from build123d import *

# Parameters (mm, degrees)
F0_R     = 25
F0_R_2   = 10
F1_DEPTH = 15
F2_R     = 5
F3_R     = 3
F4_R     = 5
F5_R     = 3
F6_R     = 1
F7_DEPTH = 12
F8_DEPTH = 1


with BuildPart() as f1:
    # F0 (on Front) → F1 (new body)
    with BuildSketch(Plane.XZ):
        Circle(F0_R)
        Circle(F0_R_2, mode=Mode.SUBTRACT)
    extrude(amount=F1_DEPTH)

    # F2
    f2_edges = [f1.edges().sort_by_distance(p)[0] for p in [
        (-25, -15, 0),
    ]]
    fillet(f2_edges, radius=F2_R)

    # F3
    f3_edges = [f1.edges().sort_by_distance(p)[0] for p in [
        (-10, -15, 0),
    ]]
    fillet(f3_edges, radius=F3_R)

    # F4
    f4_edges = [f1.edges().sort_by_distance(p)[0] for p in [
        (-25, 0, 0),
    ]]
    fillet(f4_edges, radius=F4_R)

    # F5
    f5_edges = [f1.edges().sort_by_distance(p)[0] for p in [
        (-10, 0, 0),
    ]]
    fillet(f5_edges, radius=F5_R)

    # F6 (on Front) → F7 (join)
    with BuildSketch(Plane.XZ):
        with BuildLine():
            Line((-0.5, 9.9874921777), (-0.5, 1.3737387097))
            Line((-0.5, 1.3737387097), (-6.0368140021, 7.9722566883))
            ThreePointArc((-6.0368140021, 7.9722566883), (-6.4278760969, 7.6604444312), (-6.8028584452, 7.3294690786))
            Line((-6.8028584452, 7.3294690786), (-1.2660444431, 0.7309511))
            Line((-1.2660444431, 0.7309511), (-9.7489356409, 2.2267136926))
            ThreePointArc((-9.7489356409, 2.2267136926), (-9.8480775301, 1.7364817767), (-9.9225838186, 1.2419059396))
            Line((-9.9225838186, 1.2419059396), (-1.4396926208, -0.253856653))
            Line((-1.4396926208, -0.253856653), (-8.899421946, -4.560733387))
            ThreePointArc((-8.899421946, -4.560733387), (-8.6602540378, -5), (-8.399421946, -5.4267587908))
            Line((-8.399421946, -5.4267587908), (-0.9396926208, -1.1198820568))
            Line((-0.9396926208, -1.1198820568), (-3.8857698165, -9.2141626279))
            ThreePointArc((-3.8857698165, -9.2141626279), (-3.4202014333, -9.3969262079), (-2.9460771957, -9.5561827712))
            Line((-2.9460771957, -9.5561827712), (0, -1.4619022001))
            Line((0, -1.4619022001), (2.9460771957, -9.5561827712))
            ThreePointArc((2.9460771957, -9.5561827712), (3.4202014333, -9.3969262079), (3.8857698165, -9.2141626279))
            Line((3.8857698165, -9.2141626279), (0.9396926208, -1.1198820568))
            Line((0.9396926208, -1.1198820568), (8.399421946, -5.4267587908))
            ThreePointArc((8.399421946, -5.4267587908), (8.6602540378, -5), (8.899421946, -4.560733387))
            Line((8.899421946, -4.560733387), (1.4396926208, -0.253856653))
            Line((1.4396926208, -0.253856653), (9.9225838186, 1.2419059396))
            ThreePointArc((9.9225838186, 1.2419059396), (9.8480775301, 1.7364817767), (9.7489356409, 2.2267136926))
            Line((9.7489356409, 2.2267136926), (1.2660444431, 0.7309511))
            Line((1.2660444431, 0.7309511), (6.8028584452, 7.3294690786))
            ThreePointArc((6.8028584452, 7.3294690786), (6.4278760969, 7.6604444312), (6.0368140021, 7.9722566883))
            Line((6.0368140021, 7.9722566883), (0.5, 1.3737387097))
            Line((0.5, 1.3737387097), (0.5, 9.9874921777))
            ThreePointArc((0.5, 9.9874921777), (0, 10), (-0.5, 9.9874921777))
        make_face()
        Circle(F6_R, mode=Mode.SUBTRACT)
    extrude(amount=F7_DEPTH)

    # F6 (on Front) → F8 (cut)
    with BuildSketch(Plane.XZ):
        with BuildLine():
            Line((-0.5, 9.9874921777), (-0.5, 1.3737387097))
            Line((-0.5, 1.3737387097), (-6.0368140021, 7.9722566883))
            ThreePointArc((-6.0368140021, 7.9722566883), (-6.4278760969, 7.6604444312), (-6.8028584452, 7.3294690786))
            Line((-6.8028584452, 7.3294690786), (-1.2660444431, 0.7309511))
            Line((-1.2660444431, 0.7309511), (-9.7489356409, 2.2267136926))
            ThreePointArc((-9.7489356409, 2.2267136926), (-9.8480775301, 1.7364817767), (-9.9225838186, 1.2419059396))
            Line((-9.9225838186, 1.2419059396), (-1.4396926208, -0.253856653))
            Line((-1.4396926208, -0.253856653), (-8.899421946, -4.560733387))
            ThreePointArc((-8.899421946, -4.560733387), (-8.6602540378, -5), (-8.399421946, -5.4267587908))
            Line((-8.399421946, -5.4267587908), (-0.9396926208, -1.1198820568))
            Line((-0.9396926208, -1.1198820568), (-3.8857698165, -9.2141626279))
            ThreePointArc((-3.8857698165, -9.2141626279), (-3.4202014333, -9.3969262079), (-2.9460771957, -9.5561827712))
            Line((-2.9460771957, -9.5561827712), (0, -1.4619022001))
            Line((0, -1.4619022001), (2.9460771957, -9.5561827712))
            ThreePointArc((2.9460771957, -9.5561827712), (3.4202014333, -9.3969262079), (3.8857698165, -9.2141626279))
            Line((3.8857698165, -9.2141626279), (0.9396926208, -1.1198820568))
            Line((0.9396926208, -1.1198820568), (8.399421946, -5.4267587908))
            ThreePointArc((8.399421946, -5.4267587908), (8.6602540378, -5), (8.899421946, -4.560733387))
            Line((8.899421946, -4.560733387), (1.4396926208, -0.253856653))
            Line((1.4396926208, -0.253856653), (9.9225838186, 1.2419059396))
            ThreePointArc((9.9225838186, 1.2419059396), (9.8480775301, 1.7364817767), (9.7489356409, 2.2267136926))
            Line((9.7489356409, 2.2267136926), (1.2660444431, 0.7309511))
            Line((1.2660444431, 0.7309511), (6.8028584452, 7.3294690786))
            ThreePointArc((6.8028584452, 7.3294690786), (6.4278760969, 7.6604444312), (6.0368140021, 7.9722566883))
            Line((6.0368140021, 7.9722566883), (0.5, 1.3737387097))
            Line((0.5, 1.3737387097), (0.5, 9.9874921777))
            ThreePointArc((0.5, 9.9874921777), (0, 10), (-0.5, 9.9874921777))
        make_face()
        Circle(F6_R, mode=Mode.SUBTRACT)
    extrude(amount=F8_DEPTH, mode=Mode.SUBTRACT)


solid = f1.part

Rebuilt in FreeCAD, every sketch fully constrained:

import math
import FreeCAD as App
import Part
import Sketcher
Q = App.Units.Quantity


def edges_at(feature, points):
    """Names of the edges that pass closest to the given points."""
    edges = feature.Shape.Edges
    near = lambda p: min(range(len(edges)), key=lambda i: edges[i].distToShape(Part.Vertex(*p))[0])
    return sorted({f"Edge{near(p) + 1}" for p in points})

doc = App.newDocument("Part")
body = doc.addObject("PartDesign::Body", "Body")

sketch1 = body.newObject("Sketcher::SketchObject", "Sketch")
sketch1.AttachmentSupport = (doc.getObject("XZ_Plane"), [""])
sketch1.MapMode = "FlatFace"
sketch1.addGeometry([
    Part.Circle(App.Vector(0, 0, 0), App.Vector(0, 0, 1), 25),
    Part.Circle(App.Vector(0, 0, 0), App.Vector(0, 0, 1), 10),
], False)
sketch1.addConstraint([
    Sketcher.Constraint("Coincident", 0, 3, -1, 1),
    Sketcher.Constraint("Coincident", 1, 3, -1, 1),
    Sketcher.Constraint("Diameter", 0, 50.0),
    Sketcher.Constraint("Diameter", 1, 20.0),
])
pad1 = body.newObject("PartDesign::Pad", "Pad")
pad1.Profile = sketch1
pad1.Length = 15
doc.recompute()

fillet = body.newObject("PartDesign::Fillet", "Fillet")
fillet.Base = (pad1, edges_at(pad1, [(-25, -15, 0)]))
fillet.Radius = 5
doc.recompute()

fillet2 = body.newObject("PartDesign::Fillet", "Fillet001")
fillet2.Base = (fillet, edges_at(fillet, [(-10, -15, 0)]))
fillet2.Radius = 3
doc.recompute()

fillet3 = body.newObject("PartDesign::Fillet", "Fillet002")
fillet3.Base = (fillet2, edges_at(fillet2, [(-25, 0, 0)]))
fillet3.Radius = 5
doc.recompute()

fillet4 = body.newObject("PartDesign::Fillet", "Fillet003")
fillet4.Base = (fillet3, edges_at(fillet3, [(-10, 0, 0)]))
fillet4.Radius = 3

sketch2 = body.newObject("Sketcher::SketchObject", "Sketch001")
sketch2.AttachmentSupport = (doc.getObject("XZ_Plane"), [""])
sketch2.MapMode = "FlatFace"
sketch2.addGeometry([
    Part.LineSegment(App.Vector(-0.5, 9.987492, 0), App.Vector(-0.5, 1.373739, 0)),
    Part.LineSegment(App.Vector(-0.5, 1.373739, 0), App.Vector(-6.036814, 7.972257, 0)),
    Part.ArcOfCircle(Part.Circle(App.Vector(0, 0, 0), App.Vector(0, 0, 1), 10), math.radians(127.134016), math.radians(132.865984)),
    Part.LineSegment(App.Vector(-6.802858, 7.329469, 0), App.Vector(-1.266044, 0.730951, 0)),
    Part.LineSegment(App.Vector(-1.266044, 0.730951, 0), App.Vector(-9.748936, 2.226714, 0)),
    Part.ArcOfCircle(Part.Circle(App.Vector(0, 0, 0), App.Vector(0, 0, 1), 10), math.radians(167.134016), math.radians(172.865984)),
    Part.LineSegment(App.Vector(-9.922584, 1.241906, 0), App.Vector(-1.439693, -0.253857, 0)),
    Part.LineSegment(App.Vector(-1.439693, -0.253857, 0), App.Vector(-8.899422, -4.560733, 0)),
    Part.ArcOfCircle(Part.Circle(App.Vector(0, 0, 0), App.Vector(0, 0, 1), 10), math.radians(-152.865984), math.radians(-147.134016)),
    Part.LineSegment(App.Vector(-8.399422, -5.426759, 0), App.Vector(-0.939693, -1.119882, 0)),
    Part.LineSegment(App.Vector(-0.939693, -1.119882, 0), App.Vector(-3.88577, -9.214163, 0)),
    Part.ArcOfCircle(Part.Circle(App.Vector(0, 0, 0), App.Vector(0, 0, 1), 10), math.radians(-112.865984), math.radians(-107.134016)),
    Part.LineSegment(App.Vector(-2.946077, -9.556183, 0), App.Vector(0, -1.461902, 0)),
    Part.LineSegment(App.Vector(0, -1.461902, 0), App.Vector(2.946077, -9.556183, 0)),
    Part.ArcOfCircle(Part.Circle(App.Vector(0, 0, 0), App.Vector(0, 0, 1), 10), math.radians(-72.865984), math.radians(-67.134016)),
    Part.LineSegment(App.Vector(3.88577, -9.214163, 0), App.Vector(0.939693, -1.119882, 0)),
    Part.LineSegment(App.Vector(0.939693, -1.119882, 0), App.Vector(8.399422, -5.426759, 0)),
    Part.ArcOfCircle(Part.Circle(App.Vector(0, 0, 0), App.Vector(0, 0, 1), 10), math.radians(-32.865984), math.radians(-27.134016)),
    Part.LineSegment(App.Vector(8.899422, -4.560733, 0), App.Vector(1.439693, -0.253857, 0)),
    Part.LineSegment(App.Vector(1.439693, -0.253857, 0), App.Vector(9.922584, 1.241906, 0)),
    Part.ArcOfCircle(Part.Circle(App.Vector(0, 0, 0), App.Vector(0, 0, 1), 10), math.radians(7.134016), math.radians(12.865984)),
    Part.LineSegment(App.Vector(9.748936, 2.226714, 0), App.Vector(1.266044, 0.730951, 0)),
    Part.LineSegment(App.Vector(1.266044, 0.730951, 0), App.Vector(6.802858, 7.329469, 0)),
    Part.ArcOfCircle(Part.Circle(App.Vector(0, 0, 0), App.Vector(0, 0, 1), 10), math.radians(47.134016), math.radians(52.865984)),
    Part.LineSegment(App.Vector(6.036814, 7.972257, 0), App.Vector(0.5, 1.373739, 0)),
    Part.LineSegment(App.Vector(0.5, 1.373739, 0), App.Vector(0.5, 9.987492, 0)),
    Part.ArcOfCircle(Part.Circle(App.Vector(0, 0, 0), App.Vector(0, 0, 1), 10), math.radians(87.134016), math.radians(92.865984)),
    Part.Circle(App.Vector(0, 0, 0), App.Vector(0, 0, 1), 1),
], False)
sketch2.addConstraint([
    Sketcher.Constraint("Coincident", 0, 2, 1, 1),
    Sketcher.Constraint("Coincident", 1, 2, 2, 1),
    Sketcher.Constraint("Coincident", 2, 2, 3, 1),
    Sketcher.Constraint("Coincident", 3, 2, 4, 1),
    Sketcher.Constraint("Coincident", 4, 2, 5, 1),
    Sketcher.Constraint("Coincident", 5, 2, 6, 1),
    Sketcher.Constraint("Coincident", 6, 2, 7, 1),
    Sketcher.Constraint("Coincident", 7, 2, 8, 1),
    Sketcher.Constraint("Coincident", 8, 2, 9, 1),
    Sketcher.Constraint("Coincident", 9, 2, 10, 1),
    Sketcher.Constraint("Coincident", 10, 2, 11, 1),
    Sketcher.Constraint("Coincident", 11, 2, 12, 1),
    Sketcher.Constraint("Coincident", 12, 2, 13, 1),
    Sketcher.Constraint("Coincident", 13, 2, 14, 1),
    Sketcher.Constraint("Coincident", 14, 2, 15, 1),
    Sketcher.Constraint("Coincident", 15, 2, 16, 1),
    Sketcher.Constraint("Coincident", 16, 2, 17, 1),
    Sketcher.Constraint("Coincident", 17, 2, 18, 1),
    Sketcher.Constraint("Coincident", 18, 2, 19, 1),
    Sketcher.Constraint("Coincident", 19, 2, 20, 1),
    Sketcher.Constraint("Coincident", 20, 2, 21, 1),
    Sketcher.Constraint("Coincident", 21, 2, 22, 1),
    Sketcher.Constraint("Coincident", 22, 2, 23, 1),
    Sketcher.Constraint("Coincident", 23, 2, 24, 1),
    Sketcher.Constraint("Coincident", 24, 2, 25, 1),
    Sketcher.Constraint("Coincident", 25, 2, 26, 1),
    Sketcher.Constraint("Coincident", 26, 2, 0, 1),
    Sketcher.Constraint("Vertical", 0),
    Sketcher.Constraint("Vertical", 25),
    Sketcher.Constraint("Coincident", 2, 3, -1, 1),
    Sketcher.Constraint("Coincident", 5, 3, -1, 1),
    Sketcher.Constraint("Coincident", 8, 3, -1, 1),
    Sketcher.Constraint("Coincident", 11, 3, -1, 1),
    Sketcher.Constraint("Coincident", 14, 3, -1, 1),
    Sketcher.Constraint("Coincident", 17, 3, -1, 1),
    Sketcher.Constraint("Coincident", 20, 3, -1, 1),
    Sketcher.Constraint("Coincident", 23, 3, -1, 1),
    Sketcher.Constraint("Coincident", 26, 3, -1, 1),
    Sketcher.Constraint("Coincident", 27, 3, -1, 1),
    Sketcher.Constraint("Equal", 2, 5),
    Sketcher.Constraint("Equal", 5, 8),
    Sketcher.Constraint("Equal", 8, 11),
    Sketcher.Constraint("Equal", 11, 14),
    Sketcher.Constraint("Equal", 14, 17),
    Sketcher.Constraint("Equal", 17, 20),
    Sketcher.Constraint("Equal", 20, 23),
    Sketcher.Constraint("Equal", 23, 26),
    Sketcher.Constraint("Symmetric", 9, 2, 15, 2, -2),
    Sketcher.Constraint("Symmetric", 6, 2, 18, 2, -2),
    Sketcher.Constraint("Symmetric", 3, 2, 21, 2, -2),
    Sketcher.Constraint("Symmetric", 0, 2, 24, 2, -2),
    Sketcher.Constraint("PointOnObject", 12, 2, -2),
    Sketcher.Constraint("Parallel", 1, 3),
    Sketcher.Constraint("Parallel", 4, 6),
    Sketcher.Constraint("Parallel", 7, 9),
    Sketcher.Constraint("Parallel", 10, 12),
    Sketcher.Constraint("Parallel", 13, 15),
    Sketcher.Constraint("Parallel", 16, 18),
    Sketcher.Constraint("Parallel", 19, 21),
    Sketcher.Constraint("Parallel", 22, 24),
    Sketcher.Constraint("Horizontal", 11, 2, 13, 2),
    Sketcher.Constraint("Horizontal", 8, 2, 16, 2),
    Sketcher.Constraint("Horizontal", 5, 2, 19, 2),
    Sketcher.Constraint("Horizontal", 2, 2, 22, 2),
    Sketcher.Constraint("Equal", 1, 3),
    Sketcher.Constraint("Equal", 3, 4),
    Sketcher.Constraint("Equal", 4, 6),
    Sketcher.Constraint("Equal", 6, 7),
    Sketcher.Constraint("Equal", 7, 9),
    Sketcher.Constraint("Equal", 9, 10),
    Sketcher.Constraint("Equal", 10, 12),
    Sketcher.Constraint("Diameter", 27, 2.0),
    Sketcher.Constraint("Radius", 2, 10.0),
    Sketcher.Constraint("Angle", 1, Q("130 deg")),
    Sketcher.Constraint("Angle", 4, Q("170 deg")),
    Sketcher.Constraint("Angle", 7, Q("-150 deg")),
    Sketcher.Constraint("Angle", 10, Q("-110 deg")),
    Sketcher.Constraint("DistanceX", 0, 2, 24, 2, 1.0),
    Sketcher.Constraint("DistanceX", 7, 2, 8, 2, 0.5),
])
pad2 = body.newObject("PartDesign::Pad", "Pad001")
pad2.Profile = sketch2
pad2.Length = 12

sketch3 = body.newObject("Sketcher::SketchObject", "Sketch002")
sketch3.AttachmentSupport = (doc.getObject("XZ_Plane"), [""])
sketch3.MapMode = "FlatFace"
sketch3.addGeometry([
    Part.LineSegment(App.Vector(-0.5, 9.987492, 0), App.Vector(-0.5, 1.373739, 0)),
    Part.LineSegment(App.Vector(-0.5, 1.373739, 0), App.Vector(-6.036814, 7.972257, 0)),
    Part.ArcOfCircle(Part.Circle(App.Vector(0, 0, 0), App.Vector(0, 0, 1), 10), math.radians(127.134016), math.radians(132.865984)),
    Part.LineSegment(App.Vector(-6.802858, 7.329469, 0), App.Vector(-1.266044, 0.730951, 0)),
    Part.LineSegment(App.Vector(-1.266044, 0.730951, 0), App.Vector(-9.748936, 2.226714, 0)),
    Part.ArcOfCircle(Part.Circle(App.Vector(0, 0, 0), App.Vector(0, 0, 1), 10), math.radians(167.134016), math.radians(172.865984)),
    Part.LineSegment(App.Vector(-9.922584, 1.241906, 0), App.Vector(-1.439693, -0.253857, 0)),
    Part.LineSegment(App.Vector(-1.439693, -0.253857, 0), App.Vector(-8.899422, -4.560733, 0)),
    Part.ArcOfCircle(Part.Circle(App.Vector(0, 0, 0), App.Vector(0, 0, 1), 10), math.radians(-152.865984), math.radians(-147.134016)),
    Part.LineSegment(App.Vector(-8.399422, -5.426759, 0), App.Vector(-0.939693, -1.119882, 0)),
    Part.LineSegment(App.Vector(-0.939693, -1.119882, 0), App.Vector(-3.88577, -9.214163, 0)),
    Part.ArcOfCircle(Part.Circle(App.Vector(0, 0, 0), App.Vector(0, 0, 1), 10), math.radians(-112.865984), math.radians(-107.134016)),
    Part.LineSegment(App.Vector(-2.946077, -9.556183, 0), App.Vector(0, -1.461902, 0)),
    Part.LineSegment(App.Vector(0, -1.461902, 0), App.Vector(2.946077, -9.556183, 0)),
    Part.ArcOfCircle(Part.Circle(App.Vector(0, 0, 0), App.Vector(0, 0, 1), 10), math.radians(-72.865984), math.radians(-67.134016)),
    Part.LineSegment(App.Vector(3.88577, -9.214163, 0), App.Vector(0.939693, -1.119882, 0)),
    Part.LineSegment(App.Vector(0.939693, -1.119882, 0), App.Vector(8.399422, -5.426759, 0)),
    Part.ArcOfCircle(Part.Circle(App.Vector(0, 0, 0), App.Vector(0, 0, 1), 10), math.radians(-32.865984), math.radians(-27.134016)),
    Part.LineSegment(App.Vector(8.899422, -4.560733, 0), App.Vector(1.439693, -0.253857, 0)),
    Part.LineSegment(App.Vector(1.439693, -0.253857, 0), App.Vector(9.922584, 1.241906, 0)),
    Part.ArcOfCircle(Part.Circle(App.Vector(0, 0, 0), App.Vector(0, 0, 1), 10), math.radians(7.134016), math.radians(12.865984)),
    Part.LineSegment(App.Vector(9.748936, 2.226714, 0), App.Vector(1.266044, 0.730951, 0)),
    Part.LineSegment(App.Vector(1.266044, 0.730951, 0), App.Vector(6.802858, 7.329469, 0)),
    Part.ArcOfCircle(Part.Circle(App.Vector(0, 0, 0), App.Vector(0, 0, 1), 10), math.radians(47.134016), math.radians(52.865984)),
    Part.LineSegment(App.Vector(6.036814, 7.972257, 0), App.Vector(0.5, 1.373739, 0)),
    Part.LineSegment(App.Vector(0.5, 1.373739, 0), App.Vector(0.5, 9.987492, 0)),
    Part.ArcOfCircle(Part.Circle(App.Vector(0, 0, 0), App.Vector(0, 0, 1), 10), math.radians(87.134016), math.radians(92.865984)),
    Part.Circle(App.Vector(0, 0, 0), App.Vector(0, 0, 1), 1),
], False)
sketch3.addConstraint([
    Sketcher.Constraint("Coincident", 0, 2, 1, 1),
    Sketcher.Constraint("Coincident", 1, 2, 2, 1),
    Sketcher.Constraint("Coincident", 2, 2, 3, 1),
    Sketcher.Constraint("Coincident", 3, 2, 4, 1),
    Sketcher.Constraint("Coincident", 4, 2, 5, 1),
    Sketcher.Constraint("Coincident", 5, 2, 6, 1),
    Sketcher.Constraint("Coincident", 6, 2, 7, 1),
    Sketcher.Constraint("Coincident", 7, 2, 8, 1),
    Sketcher.Constraint("Coincident", 8, 2, 9, 1),
    Sketcher.Constraint("Coincident", 9, 2, 10, 1),
    Sketcher.Constraint("Coincident", 10, 2, 11, 1),
    Sketcher.Constraint("Coincident", 11, 2, 12, 1),
    Sketcher.Constraint("Coincident", 12, 2, 13, 1),
    Sketcher.Constraint("Coincident", 13, 2, 14, 1),
    Sketcher.Constraint("Coincident", 14, 2, 15, 1),
    Sketcher.Constraint("Coincident", 15, 2, 16, 1),
    Sketcher.Constraint("Coincident", 16, 2, 17, 1),
    Sketcher.Constraint("Coincident", 17, 2, 18, 1),
    Sketcher.Constraint("Coincident", 18, 2, 19, 1),
    Sketcher.Constraint("Coincident", 19, 2, 20, 1),
    Sketcher.Constraint("Coincident", 20, 2, 21, 1),
    Sketcher.Constraint("Coincident", 21, 2, 22, 1),
    Sketcher.Constraint("Coincident", 22, 2, 23, 1),
    Sketcher.Constraint("Coincident", 23, 2, 24, 1),
    Sketcher.Constraint("Coincident", 24, 2, 25, 1),
    Sketcher.Constraint("Coincident", 25, 2, 26, 1),
    Sketcher.Constraint("Coincident", 26, 2, 0, 1),
    Sketcher.Constraint("Vertical", 0),
    Sketcher.Constraint("Vertical", 25),
    Sketcher.Constraint("Coincident", 2, 3, -1, 1),
    Sketcher.Constraint("Coincident", 5, 3, -1, 1),
    Sketcher.Constraint("Coincident", 8, 3, -1, 1),
    Sketcher.Constraint("Coincident", 11, 3, -1, 1),
    Sketcher.Constraint("Coincident", 14, 3, -1, 1),
    Sketcher.Constraint("Coincident", 17, 3, -1, 1),
    Sketcher.Constraint("Coincident", 20, 3, -1, 1),
    Sketcher.Constraint("Coincident", 23, 3, -1, 1),
    Sketcher.Constraint("Coincident", 26, 3, -1, 1),
    Sketcher.Constraint("Coincident", 27, 3, -1, 1),
    Sketcher.Constraint("Equal", 2, 5),
    Sketcher.Constraint("Equal", 5, 8),
    Sketcher.Constraint("Equal", 8, 11),
    Sketcher.Constraint("Equal", 11, 14),
    Sketcher.Constraint("Equal", 14, 17),
    Sketcher.Constraint("Equal", 17, 20),
    Sketcher.Constraint("Equal", 20, 23),
    Sketcher.Constraint("Equal", 23, 26),
    Sketcher.Constraint("Symmetric", 9, 2, 15, 2, -2),
    Sketcher.Constraint("Symmetric", 6, 2, 18, 2, -2),
    Sketcher.Constraint("Symmetric", 3, 2, 21, 2, -2),
    Sketcher.Constraint("Symmetric", 0, 2, 24, 2, -2),
    Sketcher.Constraint("PointOnObject", 12, 2, -2),
    Sketcher.Constraint("Parallel", 1, 3),
    Sketcher.Constraint("Parallel", 4, 6),
    Sketcher.Constraint("Parallel", 7, 9),
    Sketcher.Constraint("Parallel", 10, 12),
    Sketcher.Constraint("Parallel", 13, 15),
    Sketcher.Constraint("Parallel", 16, 18),
    Sketcher.Constraint("Parallel", 19, 21),
    Sketcher.Constraint("Parallel", 22, 24),
    Sketcher.Constraint("Horizontal", 11, 2, 13, 2),
    Sketcher.Constraint("Horizontal", 8, 2, 16, 2),
    Sketcher.Constraint("Horizontal", 5, 2, 19, 2),
    Sketcher.Constraint("Horizontal", 2, 2, 22, 2),
    Sketcher.Constraint("Equal", 1, 3),
    Sketcher.Constraint("Equal", 3, 4),
    Sketcher.Constraint("Equal", 4, 6),
    Sketcher.Constraint("Equal", 6, 7),
    Sketcher.Constraint("Equal", 7, 9),
    Sketcher.Constraint("Equal", 9, 10),
    Sketcher.Constraint("Equal", 10, 12),
    Sketcher.Constraint("Diameter", 27, 2.0),
    Sketcher.Constraint("Radius", 2, 10.0),
    Sketcher.Constraint("Angle", 1, Q("130 deg")),
    Sketcher.Constraint("Angle", 4, Q("170 deg")),
    Sketcher.Constraint("Angle", 7, Q("-150 deg")),
    Sketcher.Constraint("Angle", 10, Q("-110 deg")),
    Sketcher.Constraint("DistanceX", 0, 2, 24, 2, 1.0),
    Sketcher.Constraint("DistanceX", 7, 2, 8, 2, 0.5),
])
pocket1 = body.newObject("PartDesign::Pocket", "Pocket")
pocket1.Profile = sketch3
pocket1.Length = 1
pocket1.Reversed = True

doc.recompute()
